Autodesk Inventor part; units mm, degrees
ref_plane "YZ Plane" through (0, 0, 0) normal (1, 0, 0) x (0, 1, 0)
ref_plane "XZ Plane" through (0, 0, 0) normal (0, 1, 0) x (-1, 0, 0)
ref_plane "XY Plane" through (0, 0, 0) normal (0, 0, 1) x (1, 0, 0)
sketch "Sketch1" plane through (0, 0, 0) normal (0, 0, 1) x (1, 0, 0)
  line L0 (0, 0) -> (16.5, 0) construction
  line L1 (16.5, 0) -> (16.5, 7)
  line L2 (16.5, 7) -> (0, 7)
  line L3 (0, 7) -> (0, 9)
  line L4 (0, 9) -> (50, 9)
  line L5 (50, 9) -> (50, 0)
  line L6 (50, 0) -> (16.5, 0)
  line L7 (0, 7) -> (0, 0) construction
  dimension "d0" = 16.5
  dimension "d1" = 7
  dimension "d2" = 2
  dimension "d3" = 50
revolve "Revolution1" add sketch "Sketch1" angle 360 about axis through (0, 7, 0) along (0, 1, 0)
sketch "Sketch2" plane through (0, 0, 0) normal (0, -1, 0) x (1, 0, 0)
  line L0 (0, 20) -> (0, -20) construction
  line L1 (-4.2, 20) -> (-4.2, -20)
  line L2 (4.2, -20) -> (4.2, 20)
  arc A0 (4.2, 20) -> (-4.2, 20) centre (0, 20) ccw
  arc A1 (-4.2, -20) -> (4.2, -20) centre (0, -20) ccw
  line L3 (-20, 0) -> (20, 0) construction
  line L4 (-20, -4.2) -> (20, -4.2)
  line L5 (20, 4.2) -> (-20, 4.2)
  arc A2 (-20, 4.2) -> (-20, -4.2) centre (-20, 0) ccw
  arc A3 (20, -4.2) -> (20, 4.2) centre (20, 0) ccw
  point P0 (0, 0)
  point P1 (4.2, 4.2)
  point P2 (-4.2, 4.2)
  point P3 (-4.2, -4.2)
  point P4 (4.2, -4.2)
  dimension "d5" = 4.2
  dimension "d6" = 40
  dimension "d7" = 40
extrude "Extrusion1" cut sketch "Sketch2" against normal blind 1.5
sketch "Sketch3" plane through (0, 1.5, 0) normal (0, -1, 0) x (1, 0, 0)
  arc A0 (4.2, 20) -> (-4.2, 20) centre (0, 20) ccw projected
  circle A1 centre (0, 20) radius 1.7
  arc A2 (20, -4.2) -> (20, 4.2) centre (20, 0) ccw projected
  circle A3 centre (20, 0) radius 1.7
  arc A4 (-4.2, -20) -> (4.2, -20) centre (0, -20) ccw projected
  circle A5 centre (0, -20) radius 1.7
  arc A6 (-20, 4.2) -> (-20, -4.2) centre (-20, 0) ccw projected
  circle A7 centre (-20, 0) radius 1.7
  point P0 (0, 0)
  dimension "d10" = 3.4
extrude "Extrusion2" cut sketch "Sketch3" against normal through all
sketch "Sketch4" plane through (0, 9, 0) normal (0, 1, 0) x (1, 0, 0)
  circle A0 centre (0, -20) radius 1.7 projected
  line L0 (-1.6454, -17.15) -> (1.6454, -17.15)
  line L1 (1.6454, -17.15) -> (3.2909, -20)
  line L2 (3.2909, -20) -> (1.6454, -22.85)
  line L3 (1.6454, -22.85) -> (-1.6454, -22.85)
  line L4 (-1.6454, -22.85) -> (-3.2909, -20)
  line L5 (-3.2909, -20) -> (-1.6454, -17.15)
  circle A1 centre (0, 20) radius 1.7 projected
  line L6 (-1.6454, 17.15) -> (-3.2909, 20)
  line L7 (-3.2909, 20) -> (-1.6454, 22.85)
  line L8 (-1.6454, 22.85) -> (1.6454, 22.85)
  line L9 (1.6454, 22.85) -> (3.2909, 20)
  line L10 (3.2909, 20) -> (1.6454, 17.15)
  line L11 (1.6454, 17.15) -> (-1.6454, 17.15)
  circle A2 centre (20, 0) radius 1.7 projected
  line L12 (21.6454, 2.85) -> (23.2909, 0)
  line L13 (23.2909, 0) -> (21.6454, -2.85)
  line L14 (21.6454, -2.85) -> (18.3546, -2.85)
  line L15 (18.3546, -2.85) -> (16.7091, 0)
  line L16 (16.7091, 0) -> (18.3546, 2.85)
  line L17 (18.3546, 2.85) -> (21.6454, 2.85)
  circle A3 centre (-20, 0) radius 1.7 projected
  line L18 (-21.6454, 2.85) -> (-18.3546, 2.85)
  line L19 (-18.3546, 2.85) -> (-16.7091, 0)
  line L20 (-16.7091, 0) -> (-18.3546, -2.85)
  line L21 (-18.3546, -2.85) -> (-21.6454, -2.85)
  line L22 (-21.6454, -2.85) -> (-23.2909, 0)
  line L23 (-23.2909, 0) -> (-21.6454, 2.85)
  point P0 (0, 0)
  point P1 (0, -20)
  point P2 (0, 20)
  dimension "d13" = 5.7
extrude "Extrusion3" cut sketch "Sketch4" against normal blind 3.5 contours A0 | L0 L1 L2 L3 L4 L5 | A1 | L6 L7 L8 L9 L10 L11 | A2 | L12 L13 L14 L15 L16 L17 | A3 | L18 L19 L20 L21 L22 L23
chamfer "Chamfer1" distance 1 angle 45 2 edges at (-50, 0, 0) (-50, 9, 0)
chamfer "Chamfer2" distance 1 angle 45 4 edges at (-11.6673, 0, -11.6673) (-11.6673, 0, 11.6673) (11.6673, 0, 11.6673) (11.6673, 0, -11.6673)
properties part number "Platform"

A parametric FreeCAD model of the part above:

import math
import FreeCAD as App
import Part
import Sketcher

V = App.Vector
Q = App.Units.Quantity


def edges_at(feature, points):
    """Names of the edges that pass closest to the given points."""
    edges = feature.Shape.Edges
    near = lambda p: min(range(len(edges)), key=lambda i: edges[i].distToShape(Part.Vertex(*p))[0])
    return sorted({f"Edge{near(p) + 1}" for p in points})

doc = App.newDocument("Part")
body = doc.addObject("PartDesign::Body", "Body")

# Sketch on XY plane
sketch1 = body.newObject("Sketcher::SketchObject", "Sketch")
sketch1.AttachmentSupport = (doc.getObject("XY_Plane"), [""])
sketch1.MapMode = "FlatFace"
sketch1.addGeometry([
    Part.LineSegment(V(16.5, 7, 0), V(16.5, 0, 0)),  # 0
    Part.LineSegment(V(16.5, 0, 0), V(50, 0, 0)),  # 1
    Part.LineSegment(V(50, 0, 0), V(50, 9, 0)),  # 2
    Part.LineSegment(V(50, 9, 0), V(0, 9, 0)),  # 3
    Part.LineSegment(V(0, 9, 0), V(0, 7, 0)),  # 4
    Part.LineSegment(V(0, 7, 0), V(16.5, 7, 0)),  # 5
], False)
sketch1.addConstraint([
    Sketcher.Constraint("Coincident", 0, 2, 1, 1),
    Sketcher.Constraint("Coincident", 1, 2, 2, 1),
    Sketcher.Constraint("Coincident", 2, 2, 3, 1),
    Sketcher.Constraint("Coincident", 3, 2, 4, 1),
    Sketcher.Constraint("Coincident", 4, 2, 5, 1),
    Sketcher.Constraint("Coincident", 5, 2, 0, 1),
    Sketcher.Constraint("Vertical", 0),
    Sketcher.Constraint("Horizontal", 1),
    Sketcher.Constraint("Vertical", 2),
    Sketcher.Constraint("Horizontal", 3),
    Sketcher.Constraint("Vertical", 4),
    Sketcher.Constraint("Horizontal", 5),
    Sketcher.Constraint("PointOnObject", 0, 2, -1),
    Sketcher.Constraint("PointOnObject", 3, 2, -2),
    Sketcher.Constraint("DistanceX", 3, 2, 3, 1, Q("50 mm")),
    Sketcher.Constraint("DistanceY", 0, 2, 0, 1, Q("7 mm")),
    Sketcher.Constraint("DistanceY", 4, 2, 4, 1, Q("2 mm")),
    Sketcher.Constraint("DistanceX", 5, 1, 5, 2, Q("16.5 mm")),
])
revolution = body.newObject("PartDesign::Revolution", "Revolution")
revolution.Profile = sketch1
revolution.ReferenceAxis = (sketch1, ["V_Axis"])
revolution.Angle = 360

# Sketch on XZ plane
sketch2 = body.newObject("Sketcher::SketchObject", "Sketch001")
sketch2.AttachmentSupport = (doc.getObject("XZ_Plane"), [""])
sketch2.MapMode = "FlatFace"
sketch2.addGeometry([
    Part.ArcOfCircle(Part.Circle(V(0, 20, 0), V(0, 0, 1), 4.2), math.radians(0), math.radians(180)),  # 0
    Part.LineSegment(V(-4.2, 20, 0), V(-4.2, 4.2, 0)),  # 1
    Part.LineSegment(V(-4.2, 4.2, 0), V(-20, 4.2, 0)),  # 2
    Part.ArcOfCircle(Part.Circle(V(-20, 0, 0), V(0, 0, 1), 4.2), math.radians(90), math.radians(270)),  # 3
    Part.LineSegment(V(-20, -4.2, 0), V(-4.2, -4.2, 0)),  # 4
    Part.LineSegment(V(-4.2, -4.2, 0), V(-4.2, -20, 0)),  # 5
    Part.ArcOfCircle(Part.Circle(V(0, -20, 0), V(0, 0, 1), 4.2), math.radians(180), math.radians(360)),  # 6
    Part.LineSegment(V(4.2, -20, 0), V(4.2, -4.2, 0)),  # 7
    Part.LineSegment(V(4.2, -4.2, 0), V(20, -4.2, 0)),  # 8
    Part.ArcOfCircle(Part.Circle(V(20, 0, 0), V(0, 0, 1), 4.2), math.radians(-90), math.radians(90)),  # 9
    Part.LineSegment(V(20, 4.2, 0), V(4.2, 4.2, 0)),  # 10
    Part.LineSegment(V(4.2, 4.2, 0), V(4.2, 20, 0)),  # 11
], False)
sketch2.addConstraint([
    Sketcher.Constraint("Tangent", 0, 2, 1, 1),
    Sketcher.Constraint("Coincident", 1, 2, 2, 1),
    Sketcher.Constraint("Tangent", 2, 2, 3, 1),
    Sketcher.Constraint("Tangent", 3, 2, 4, 1),
    Sketcher.Constraint("Coincident", 4, 2, 5, 1),
    Sketcher.Constraint("Tangent", 5, 2, 6, 1),
    Sketcher.Constraint("Tangent", 6, 2, 7, 1),
    Sketcher.Constraint("Coincident", 7, 2, 8, 1),
    Sketcher.Constraint("Tangent", 8, 2, 9, 1),
    Sketcher.Constraint("Tangent", 9, 2, 10, 1),
    Sketcher.Constraint("Coincident", 10, 2, 11, 1),
    Sketcher.Constraint("Tangent", 11, 2, 0, 1),
    Sketcher.Constraint("Vertical", 1),
    Sketcher.Constraint("Horizontal", 2),
    Sketcher.Constraint("Horizontal", 4),
    Sketcher.Constraint("Vertical", 5),
    Sketcher.Constraint("Vertical", 7),
    Sketcher.Constraint("Horizontal", 8),
    Sketcher.Constraint("Horizontal", 10),
    Sketcher.Constraint("Vertical", 11),
    Sketcher.Constraint("Equal", 0, 3),
    Sketcher.Constraint("Equal", 3, 6),
    Sketcher.Constraint("Equal", 6, 9),
    Sketcher.Constraint("Symmetric", 0, 3, 6, 3, -1, 1),
    Sketcher.Constraint("Symmetric", 3, 3, 9, 3, -1, 1),
    Sketcher.Constraint("Symmetric", 4, 2, 7, 2, -2),
    Sketcher.Constraint("Equal", 10, 1),
    Sketcher.Constraint("Radius", 0, Q("4.2 mm")),
    Sketcher.Constraint("DistanceY", 6, 3, 0, 3, Q("40 mm")),
])
pocket1 = body.newObject("PartDesign::Pocket", "Pocket")
pocket1.Profile = sketch2
pocket1.Length = 1.5

# Sketch on XZ plane
sketch3 = body.newObject("Sketcher::SketchObject", "Sketch002")
sketch3.AttachmentSupport = (doc.getObject("XZ_Plane"), [""])
sketch3.MapMode = "FlatFace"
sketch3.AttachmentOffset = App.Placement(V(0, 0, -1.5), App.Rotation())
sketch3.addGeometry([
    Part.Circle(V(0, 20, 0), V(0, 0, 1), 1.7),
    Part.Circle(V(20, 0, 0), V(0, 0, 1), 1.7),
    Part.Circle(V(0, -20, 0), V(0, 0, 1), 1.7),
    Part.Circle(V(-20, 0, 0), V(0, 0, 1), 1.7),
], False)
sketch3.addConstraint([
    Sketcher.Constraint("Equal", 0, 1),
    Sketcher.Constraint("Equal", 1, 2),
    Sketcher.Constraint("Equal", 2, 3),
    Sketcher.Constraint("Symmetric", 0, 3, 2, 3, -1, 1),
    Sketcher.Constraint("Symmetric", 1, 3, 3, 3, -1, 1),
    Sketcher.Constraint("PointOnObject", 0, 3, -2),
    Sketcher.Constraint("PointOnObject", 1, 3, -1),
    Sketcher.Constraint("Diameter", 0, Q("3.4 mm")),
    Sketcher.Constraint("DistanceY", -1, 1, 0, 3, Q("20 mm")),
    Sketcher.Constraint("DistanceX", -1, 1, 1, 3, Q("20 mm")),
])
pocket2 = body.newObject("PartDesign::Pocket", "Pocket001")
pocket2.Profile = sketch3
pocket2.Type = "ThroughAll"

# Sketch on XZ plane
sketch4 = body.newObject("Sketcher::SketchObject", "Sketch003")
sketch4.AttachmentSupport = (doc.getObject("XZ_Plane"), [""])
sketch4.MapMode = "FlatFace"
sketch4.AttachmentOffset = App.Placement(V(0, 0, -9), App.Rotation())
sketch4.addGeometry([
    Part.LineSegment(V(1.6454, 17.15, 0), V(-1.6454, 17.15, 0)),  # 0
    Part.LineSegment(V(-1.6454, 17.15, 0), V(-3.2909, 20, 0)),  # 1
    Part.LineSegment(V(-3.2909, 20, 0), V(-1.6454, 22.85, 0)),  # 2
    Part.LineSegment(V(-1.6454, 22.85, 0), V(1.6454, 22.85, 0)),  # 3
    Part.LineSegment(V(1.6454, 22.85, 0), V(3.2909, 20, 0)),  # 4
    Part.LineSegment(V(3.2909, 20, 0), V(1.6454, 17.15, 0)),  # 5
    Part.LineSegment(V(-3.2909, -20, 0), V(-1.6454, -17.15, 0)),  # 6
    Part.LineSegment(V(-1.6454, -17.15, 0), V(1.6454, -17.15, 0)),  # 7
    Part.LineSegment(V(1.6454, -17.15, 0), V(3.2909, -20, 0)),  # 8
    Part.LineSegment(V(3.2909, -20, 0), V(1.6454, -22.85, 0)),  # 9
    Part.LineSegment(V(1.6454, -22.85, 0), V(-1.6454, -22.85, 0)),  # 10
    Part.LineSegment(V(-1.6454, -22.85, 0), V(-3.2909, -20, 0)),  # 11
    Part.LineSegment(V(23.2909, 0, 0), V(21.6454, -2.85, 0)),  # 12
    Part.LineSegment(V(21.6454, -2.85, 0), V(18.3546, -2.85, 0)),  # 13
    Part.LineSegment(V(18.3546, -2.85, 0), V(16.7091, 0, 0)),  # 14
    Part.LineSegment(V(16.7091, 0, 0), V(18.3546, 2.85, 0)),  # 15
    Part.LineSegment(V(18.3546, 2.85, 0), V(21.6454, 2.85, 0)),  # 16
    Part.LineSegment(V(21.6454, 2.85, 0), V(23.2909, 0, 0)),  # 17
    Part.LineSegment(V(-18.3546, -2.85, 0), V(-21.6454, -2.85, 0)),  # 18
    Part.LineSegment(V(-21.6454, -2.85, 0), V(-23.2909, 0, 0)),  # 19
    Part.LineSegment(V(-23.2909, 0, 0), V(-21.6454, 2.85, 0)),  # 20
    Part.LineSegment(V(-21.6454, 2.85, 0), V(-18.3546, 2.85, 0)),  # 21
    Part.LineSegment(V(-18.3546, 2.85, 0), V(-16.7091, 0, 0)),  # 22
    Part.LineSegment(V(-16.7091, 0, 0), V(-18.3546, -2.85, 0)),  # 23
], False)
sketch4.addConstraint([
    Sketcher.Constraint("Coincident", 0, 2, 1, 1),
    Sketcher.Constraint("Coincident", 1, 2, 2, 1),
    Sketcher.Constraint("Coincident", 2, 2, 3, 1),
    Sketcher.Constraint("Coincident", 3, 2, 4, 1),
    Sketcher.Constraint("Coincident", 4, 2, 5, 1),
    Sketcher.Constraint("Coincident", 5, 2, 0, 1),
    Sketcher.Constraint("Coincident", 6, 2, 7, 1),
    Sketcher.Constraint("Coincident", 7, 2, 8, 1),
    Sketcher.Constraint("Coincident", 8, 2, 9, 1),
    Sketcher.Constraint("Coincident", 9, 2, 10, 1),
    Sketcher.Constraint("Coincident", 10, 2, 11, 1),
    Sketcher.Constraint("Coincident", 11, 2, 6, 1),
    Sketcher.Constraint("Coincident", 12, 2, 13, 1),
    Sketcher.Constraint("Coincident", 13, 2, 14, 1),
    Sketcher.Constraint("Coincident", 14, 2, 15, 1),
    Sketcher.Constraint("Coincident", 15, 2, 16, 1),
    Sketcher.Constraint("Coincident", 16, 2, 17, 1),
    Sketcher.Constraint("Coincident", 17, 2, 12, 1),
    Sketcher.Constraint("Coincident", 18, 2, 19, 1),
    Sketcher.Constraint("Coincident", 19, 2, 20, 1),
    Sketcher.Constraint("Coincident", 20, 2, 21, 1),
    Sketcher.Constraint("Coincident", 21, 2, 22, 1),
    Sketcher.Constraint("Coincident", 22, 2, 23, 1),
    Sketcher.Constraint("Coincident", 23, 2, 18, 1),
    Sketcher.Constraint("Horizontal", 0),
    Sketcher.Constraint("Horizontal", 3),
    Sketcher.Constraint("Horizontal", 7),
    Sketcher.Constraint("Horizontal", 10),
    Sketcher.Constraint("Horizontal", 13),
    Sketcher.Constraint("Horizontal", 16),
    Sketcher.Constraint("Horizontal", 18),
    Sketcher.Constraint("Horizontal", 21),
    Sketcher.Constraint("Symmetric", 5, 2, 6, 2, -1, 1),
    Sketcher.Constraint("Symmetric", 1, 2, 8, 2, -1, 1),
    Sketcher.Constraint("Symmetric", 2, 2, 9, 2, -1, 1),
    Sketcher.Constraint("Symmetric", 4, 2, 11, 2, -1, 1),
    Sketcher.Constraint("Symmetric", 16, 2, 18, 2, -1, 1),
    Sketcher.Constraint("Symmetric", 17, 2, 19, 2, -1, 1),
    Sketcher.Constraint("Symmetric", 12, 2, 20, 2, -1, 1),
    Sketcher.Constraint("Symmetric", 14, 2, 22, 2, -1, 1),
    Sketcher.Constraint("Symmetric", 1, 2, 4, 2, -2),
    Sketcher.Constraint("Symmetric", 12, 2, 18, 2, -2),
    Sketcher.Constraint("PointOnObject", 14, 2, -1),
    Sketcher.Constraint("PointOnObject", 17, 2, -1),
    Sketcher.Constraint("Parallel", 1, 4),
    Sketcher.Constraint("Parallel", 2, 5),
    Sketcher.Constraint("Parallel", 4, 8),
    Sketcher.Constraint("Parallel", 8, 11),
    Sketcher.Constraint("Parallel", 9, 12),
    Sketcher.Constraint("Parallel", 11, 14),
    Sketcher.Constraint("Parallel", 12, 15),
    Sketcher.Constraint("Parallel", 14, 17),
    Sketcher.Constraint("Parallel", 19, 22),
    Sketcher.Constraint("Parallel", 20, 23),
    Sketcher.Constraint("Vertical", 0, 2, 2, 2),
    Sketcher.Constraint("Equal", 10, 13),
    Sketcher.Constraint("Equal", 11, 12),
    Sketcher.Constraint("DistanceY", 0, 2, 2, 2, Q("5.7 mm")),
    Sketcher.Constraint("Angle", 1, Q("120.0008 deg")),
    Sketcher.Constraint("DistanceY", -1, 1, 1, 2, Q("20 mm")),
    Sketcher.Constraint("DistanceX", 7, 2, 12, 2, Q("20 mm")),
    Sketcher.Constraint("DistanceX", 0, 2, 0, 1, Q("3.2908 mm")),
])
pocket3 = body.newObject("PartDesign::Pocket", "Pocket002")
pocket3.Profile = sketch4
pocket3.Length = 3.5
pocket3.Reversed = True
doc.recompute()

chamfer = body.newObject("PartDesign::Chamfer", "Chamfer")
chamfer.Base = (pocket3, edges_at(pocket3, [(-50, 0, 0), (-50, 9, 0)]))
chamfer.Size = 1
doc.recompute()

chamfer2 = body.newObject("PartDesign::Chamfer", "Chamfer001")
chamfer2.Base = (chamfer, edges_at(chamfer, [
    (-11.667, 0, -11.667),
    (-11.667, 0, 11.667),
    (11.667, 0, 11.667),
    (11.667, 0, -11.667),
]))
chamfer2.Size = 1

doc.recompute()
